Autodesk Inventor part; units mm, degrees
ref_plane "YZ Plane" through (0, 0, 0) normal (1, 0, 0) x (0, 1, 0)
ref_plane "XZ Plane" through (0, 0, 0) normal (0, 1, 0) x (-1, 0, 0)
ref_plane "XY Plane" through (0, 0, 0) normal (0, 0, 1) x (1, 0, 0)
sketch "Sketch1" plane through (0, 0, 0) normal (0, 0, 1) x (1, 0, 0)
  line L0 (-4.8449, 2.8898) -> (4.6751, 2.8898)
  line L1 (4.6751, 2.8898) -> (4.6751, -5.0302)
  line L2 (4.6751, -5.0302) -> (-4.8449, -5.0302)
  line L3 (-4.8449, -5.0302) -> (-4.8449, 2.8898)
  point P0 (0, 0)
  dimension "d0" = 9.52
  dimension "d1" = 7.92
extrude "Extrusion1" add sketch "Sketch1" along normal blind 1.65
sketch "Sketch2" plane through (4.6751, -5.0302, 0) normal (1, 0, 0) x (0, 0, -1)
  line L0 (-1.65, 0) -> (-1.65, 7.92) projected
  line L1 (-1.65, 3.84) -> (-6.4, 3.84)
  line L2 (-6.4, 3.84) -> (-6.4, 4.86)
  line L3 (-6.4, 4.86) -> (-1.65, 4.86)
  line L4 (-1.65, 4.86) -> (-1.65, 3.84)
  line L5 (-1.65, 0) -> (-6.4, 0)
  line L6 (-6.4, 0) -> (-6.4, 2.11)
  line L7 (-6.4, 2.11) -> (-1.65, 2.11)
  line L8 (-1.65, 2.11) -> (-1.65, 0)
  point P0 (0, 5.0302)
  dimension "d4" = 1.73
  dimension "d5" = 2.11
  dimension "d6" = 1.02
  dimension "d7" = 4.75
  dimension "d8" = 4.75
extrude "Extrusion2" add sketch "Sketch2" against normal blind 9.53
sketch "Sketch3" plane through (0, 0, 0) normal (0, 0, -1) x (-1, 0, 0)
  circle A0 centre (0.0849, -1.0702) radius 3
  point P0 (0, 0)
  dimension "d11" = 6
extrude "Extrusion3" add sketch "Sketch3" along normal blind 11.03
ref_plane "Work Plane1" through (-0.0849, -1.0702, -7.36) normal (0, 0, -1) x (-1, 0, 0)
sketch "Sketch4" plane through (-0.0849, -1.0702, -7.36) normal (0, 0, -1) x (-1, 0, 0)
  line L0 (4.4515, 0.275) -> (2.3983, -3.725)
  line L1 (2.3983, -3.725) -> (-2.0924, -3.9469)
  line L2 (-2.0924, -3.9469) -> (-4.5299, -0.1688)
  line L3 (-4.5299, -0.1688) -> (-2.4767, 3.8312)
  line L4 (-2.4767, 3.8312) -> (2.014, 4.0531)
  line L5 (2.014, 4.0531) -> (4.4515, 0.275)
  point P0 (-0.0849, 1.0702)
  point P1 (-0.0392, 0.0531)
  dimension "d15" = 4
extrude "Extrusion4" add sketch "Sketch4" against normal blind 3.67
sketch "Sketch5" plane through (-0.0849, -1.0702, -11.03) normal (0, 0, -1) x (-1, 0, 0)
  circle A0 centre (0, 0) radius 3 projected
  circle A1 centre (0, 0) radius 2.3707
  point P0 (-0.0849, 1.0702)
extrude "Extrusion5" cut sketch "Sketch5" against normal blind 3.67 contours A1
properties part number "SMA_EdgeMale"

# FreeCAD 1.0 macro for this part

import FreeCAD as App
import Part
import Sketcher
from FreeCAD import Vector
Q = App.Units.Quantity


def add_polygon(sketch, points):
    """Adds a closed chain of lines whose ends are joined by coincident constraints."""
    first, n = sketch.GeometryCount, len(points)
    for a, b in zip(points, points[1:] + points[:1]):
        sketch.addGeometry(Part.LineSegment(App.Vector(*a, 0), App.Vector(*b, 0)), False)
    for i in range(n):
        sketch.addConstraint(Sketcher.Constraint("Coincident", first + i, 2, first + (i + 1) % n, 1))

doc = App.newDocument("Part")
body = doc.addObject("PartDesign::Body", "Body")

# Sketch on XY plane
sketch1 = body.newObject("Sketcher::SketchObject", "Sketch")
sketch1.AttachmentSupport = (doc.getObject("XY_Plane"), [""])
sketch1.MapMode = "FlatFace"
add_polygon(sketch1, [(4.6751, 2.8898), (-4.8449, 2.8898), (-4.8449, -5.0302), (4.6751, -5.0302)])  # lines 0-3
sketch1.addConstraint([
    Sketcher.Constraint("Horizontal", 0),
    Sketcher.Constraint("Vertical", 1),
    Sketcher.Constraint("Horizontal", 2),
    Sketcher.Constraint("Vertical", 3),
    Sketcher.Constraint("DistanceX", 0, 2, 0, 1, Q("9.52 mm")),
    Sketcher.Constraint("DistanceY", 1, 2, 1, 1, Q("7.92 mm")),
    Sketcher.Constraint("DistanceX", 0, 2, -1, 1, Q("4.845 mm")),
    Sketcher.Constraint("DistanceY", -1, 1, 0, 2, Q("2.8898 mm")),
])
pad1 = body.newObject("PartDesign::Pad", "Pad")
pad1.Profile = sketch1
pad1.Length = 1.65

# Sketch on YZ plane
sketch2 = body.newObject("Sketcher::SketchObject", "Sketch001")
sketch2.AttachmentSupport = (doc.getObject("YZ_Plane"), [""])
sketch2.MapMode = "FlatFace"
sketch2.AttachmentOffset = App.Placement(Vector(0, 0, 4.6751), App.Rotation())
add_polygon(sketch2, [(-5.0302, 6.4), (-5.0302, 1.65), (-2.9202, 1.65), (-2.9202, 6.4)])  # lines 0-3
add_polygon(sketch2, [(-1.1902, 6.4), (-1.1902, 1.65), (-0.1702, 1.65), (-0.1702, 6.4)])  # lines 4-7
sketch2.addConstraint([
    Sketcher.Constraint("Vertical", 0),
    Sketcher.Constraint("Horizontal", 1),
    Sketcher.Constraint("Vertical", 2),
    Sketcher.Constraint("Horizontal", 3),
    Sketcher.Constraint("Vertical", 4),
    Sketcher.Constraint("Horizontal", 5),
    Sketcher.Constraint("Vertical", 6),
    Sketcher.Constraint("Horizontal", 7),
    Sketcher.Constraint("Horizontal", 1, 2, 4, 2),
    Sketcher.Constraint("Horizontal", 3, 2, 6, 2),
    Sketcher.Constraint("DistanceX", 1, 1, 1, 2, Q("2.11 mm")),
    Sketcher.Constraint("DistanceX", 5, 1, 5, 2, Q("1.02 mm")),
    Sketcher.Constraint("DistanceY", 0, 2, 0, 1, Q("4.75 mm")),
    Sketcher.Constraint("DistanceX", 1, 2, 4, 2, Q("1.73 mm")),
    Sketcher.Constraint("DistanceY", -1, 1, 2, 2, Q("6.4 mm")),
    Sketcher.Constraint("DistanceX", 0, 2, -1, 1, Q("5.0302 mm")),
])
pad2 = body.newObject("PartDesign::Pad", "Pad001")
pad2.Profile = sketch2
pad2.Length = 9.53
pad2.Reversed = True

# Sketch on XY plane
sketch3 = body.newObject("Sketcher::SketchObject", "Sketch002")
sketch3.AttachmentSupport = (doc.getObject("XY_Plane"), [""])
sketch3.MapMode = "FlatFace"
sketch3.addGeometry(Part.Circle(Vector(-0.0849, -1.0702, 0), Vector(0, 0, 1), 3), False)
sketch3.addConstraint([
    Sketcher.Constraint("Diameter", 0, Q("6 mm")),
    Sketcher.Constraint("DistanceX", 0, 3, -1, 1, Q("0.085 mm")),
    Sketcher.Constraint("DistanceY", 0, 3, -1, 1, Q("1.0702 mm")),
])
pad3 = body.newObject("PartDesign::Pad", "Pad002")
pad3.Profile = sketch3
pad3.Length = 11.03
pad3.Reversed = True

# Sketch on XY plane
sketch4 = body.newObject("Sketcher::SketchObject", "Sketch003")
sketch4.AttachmentSupport = (doc.getObject("XY_Plane"), [""])
sketch4.MapMode = "FlatFace"
sketch4.AttachmentOffset = App.Placement(Vector(0, 0, -7.36), App.Rotation())
add_polygon(sketch4, [(-2.4832, -4.7952), (-4.5364, -0.7952), (-2.0989, 2.9829), (2.3918, 2.761), (4.445, -1.239), (2.0075, -5.0171)])  # lines 0-5
sketch4.addConstraint([
    Sketcher.Constraint("DistanceY", 3, 2, 2, 2, Q("4 mm")),
    Sketcher.Constraint("DistanceY", 5, 2, 0, 2, Q("4 mm")),
    Sketcher.Constraint("DistanceY", 4, 2, 1, 2, Q("8 mm")),
    Sketcher.Constraint("DistanceX", 1, 2, -1, 1, Q("2.099 mm")),
    Sketcher.Constraint("DistanceY", -1, 1, 1, 2, Q("2.983 mm")),
    Sketcher.Constraint("DistanceY", -1, 1, 2, 2, Q("2.761 mm")),
    Sketcher.Constraint("DistanceX", -1, 1, 3, 2, Q("4.445 mm")),
    Sketcher.Constraint("DistanceY", 0, 2, 1, 2, Q("3.778 mm")),
    Sketcher.Constraint("DistanceX", 0, 2, 4, 2, Q("6.544 mm")),
    Sketcher.Constraint("DistanceX", 5, 2, 2, 2, Q("4.875 mm")),
    Sketcher.Constraint("Distance", 0, Q("4.4962 mm")),
    Sketcher.Constraint("Distance", 1, Q("4.4962 mm")),
])
pad4 = body.newObject("PartDesign::Pad", "Pad003")
pad4.Profile = sketch4
pad4.Length = 3.67

# Sketch on XY plane
sketch5 = body.newObject("Sketcher::SketchObject", "Sketch004")
sketch5.AttachmentSupport = (doc.getObject("XY_Plane"), [""])
sketch5.MapMode = "FlatFace"
sketch5.AttachmentOffset = App.Placement(Vector(0, 0, -11.03), App.Rotation())
sketch5.addGeometry(Part.Circle(Vector(-0.0849, -1.0702, 0), Vector(0, 0, 1), 2.3707), False)
sketch5.addConstraint([
    Sketcher.Constraint("Diameter", 0, Q("4.7414 mm")),
    Sketcher.Constraint("DistanceX", 0, 3, -1, 1, Q("0.085 mm")),
    Sketcher.Constraint("DistanceY", 0, 3, -1, 1, Q("1.0702 mm")),
])
pocket1 = body.newObject("PartDesign::Pocket", "Pocket")
pocket1.Profile = sketch5
pocket1.Length = 3.67
pocket1.Reversed = True

doc.recompute()
